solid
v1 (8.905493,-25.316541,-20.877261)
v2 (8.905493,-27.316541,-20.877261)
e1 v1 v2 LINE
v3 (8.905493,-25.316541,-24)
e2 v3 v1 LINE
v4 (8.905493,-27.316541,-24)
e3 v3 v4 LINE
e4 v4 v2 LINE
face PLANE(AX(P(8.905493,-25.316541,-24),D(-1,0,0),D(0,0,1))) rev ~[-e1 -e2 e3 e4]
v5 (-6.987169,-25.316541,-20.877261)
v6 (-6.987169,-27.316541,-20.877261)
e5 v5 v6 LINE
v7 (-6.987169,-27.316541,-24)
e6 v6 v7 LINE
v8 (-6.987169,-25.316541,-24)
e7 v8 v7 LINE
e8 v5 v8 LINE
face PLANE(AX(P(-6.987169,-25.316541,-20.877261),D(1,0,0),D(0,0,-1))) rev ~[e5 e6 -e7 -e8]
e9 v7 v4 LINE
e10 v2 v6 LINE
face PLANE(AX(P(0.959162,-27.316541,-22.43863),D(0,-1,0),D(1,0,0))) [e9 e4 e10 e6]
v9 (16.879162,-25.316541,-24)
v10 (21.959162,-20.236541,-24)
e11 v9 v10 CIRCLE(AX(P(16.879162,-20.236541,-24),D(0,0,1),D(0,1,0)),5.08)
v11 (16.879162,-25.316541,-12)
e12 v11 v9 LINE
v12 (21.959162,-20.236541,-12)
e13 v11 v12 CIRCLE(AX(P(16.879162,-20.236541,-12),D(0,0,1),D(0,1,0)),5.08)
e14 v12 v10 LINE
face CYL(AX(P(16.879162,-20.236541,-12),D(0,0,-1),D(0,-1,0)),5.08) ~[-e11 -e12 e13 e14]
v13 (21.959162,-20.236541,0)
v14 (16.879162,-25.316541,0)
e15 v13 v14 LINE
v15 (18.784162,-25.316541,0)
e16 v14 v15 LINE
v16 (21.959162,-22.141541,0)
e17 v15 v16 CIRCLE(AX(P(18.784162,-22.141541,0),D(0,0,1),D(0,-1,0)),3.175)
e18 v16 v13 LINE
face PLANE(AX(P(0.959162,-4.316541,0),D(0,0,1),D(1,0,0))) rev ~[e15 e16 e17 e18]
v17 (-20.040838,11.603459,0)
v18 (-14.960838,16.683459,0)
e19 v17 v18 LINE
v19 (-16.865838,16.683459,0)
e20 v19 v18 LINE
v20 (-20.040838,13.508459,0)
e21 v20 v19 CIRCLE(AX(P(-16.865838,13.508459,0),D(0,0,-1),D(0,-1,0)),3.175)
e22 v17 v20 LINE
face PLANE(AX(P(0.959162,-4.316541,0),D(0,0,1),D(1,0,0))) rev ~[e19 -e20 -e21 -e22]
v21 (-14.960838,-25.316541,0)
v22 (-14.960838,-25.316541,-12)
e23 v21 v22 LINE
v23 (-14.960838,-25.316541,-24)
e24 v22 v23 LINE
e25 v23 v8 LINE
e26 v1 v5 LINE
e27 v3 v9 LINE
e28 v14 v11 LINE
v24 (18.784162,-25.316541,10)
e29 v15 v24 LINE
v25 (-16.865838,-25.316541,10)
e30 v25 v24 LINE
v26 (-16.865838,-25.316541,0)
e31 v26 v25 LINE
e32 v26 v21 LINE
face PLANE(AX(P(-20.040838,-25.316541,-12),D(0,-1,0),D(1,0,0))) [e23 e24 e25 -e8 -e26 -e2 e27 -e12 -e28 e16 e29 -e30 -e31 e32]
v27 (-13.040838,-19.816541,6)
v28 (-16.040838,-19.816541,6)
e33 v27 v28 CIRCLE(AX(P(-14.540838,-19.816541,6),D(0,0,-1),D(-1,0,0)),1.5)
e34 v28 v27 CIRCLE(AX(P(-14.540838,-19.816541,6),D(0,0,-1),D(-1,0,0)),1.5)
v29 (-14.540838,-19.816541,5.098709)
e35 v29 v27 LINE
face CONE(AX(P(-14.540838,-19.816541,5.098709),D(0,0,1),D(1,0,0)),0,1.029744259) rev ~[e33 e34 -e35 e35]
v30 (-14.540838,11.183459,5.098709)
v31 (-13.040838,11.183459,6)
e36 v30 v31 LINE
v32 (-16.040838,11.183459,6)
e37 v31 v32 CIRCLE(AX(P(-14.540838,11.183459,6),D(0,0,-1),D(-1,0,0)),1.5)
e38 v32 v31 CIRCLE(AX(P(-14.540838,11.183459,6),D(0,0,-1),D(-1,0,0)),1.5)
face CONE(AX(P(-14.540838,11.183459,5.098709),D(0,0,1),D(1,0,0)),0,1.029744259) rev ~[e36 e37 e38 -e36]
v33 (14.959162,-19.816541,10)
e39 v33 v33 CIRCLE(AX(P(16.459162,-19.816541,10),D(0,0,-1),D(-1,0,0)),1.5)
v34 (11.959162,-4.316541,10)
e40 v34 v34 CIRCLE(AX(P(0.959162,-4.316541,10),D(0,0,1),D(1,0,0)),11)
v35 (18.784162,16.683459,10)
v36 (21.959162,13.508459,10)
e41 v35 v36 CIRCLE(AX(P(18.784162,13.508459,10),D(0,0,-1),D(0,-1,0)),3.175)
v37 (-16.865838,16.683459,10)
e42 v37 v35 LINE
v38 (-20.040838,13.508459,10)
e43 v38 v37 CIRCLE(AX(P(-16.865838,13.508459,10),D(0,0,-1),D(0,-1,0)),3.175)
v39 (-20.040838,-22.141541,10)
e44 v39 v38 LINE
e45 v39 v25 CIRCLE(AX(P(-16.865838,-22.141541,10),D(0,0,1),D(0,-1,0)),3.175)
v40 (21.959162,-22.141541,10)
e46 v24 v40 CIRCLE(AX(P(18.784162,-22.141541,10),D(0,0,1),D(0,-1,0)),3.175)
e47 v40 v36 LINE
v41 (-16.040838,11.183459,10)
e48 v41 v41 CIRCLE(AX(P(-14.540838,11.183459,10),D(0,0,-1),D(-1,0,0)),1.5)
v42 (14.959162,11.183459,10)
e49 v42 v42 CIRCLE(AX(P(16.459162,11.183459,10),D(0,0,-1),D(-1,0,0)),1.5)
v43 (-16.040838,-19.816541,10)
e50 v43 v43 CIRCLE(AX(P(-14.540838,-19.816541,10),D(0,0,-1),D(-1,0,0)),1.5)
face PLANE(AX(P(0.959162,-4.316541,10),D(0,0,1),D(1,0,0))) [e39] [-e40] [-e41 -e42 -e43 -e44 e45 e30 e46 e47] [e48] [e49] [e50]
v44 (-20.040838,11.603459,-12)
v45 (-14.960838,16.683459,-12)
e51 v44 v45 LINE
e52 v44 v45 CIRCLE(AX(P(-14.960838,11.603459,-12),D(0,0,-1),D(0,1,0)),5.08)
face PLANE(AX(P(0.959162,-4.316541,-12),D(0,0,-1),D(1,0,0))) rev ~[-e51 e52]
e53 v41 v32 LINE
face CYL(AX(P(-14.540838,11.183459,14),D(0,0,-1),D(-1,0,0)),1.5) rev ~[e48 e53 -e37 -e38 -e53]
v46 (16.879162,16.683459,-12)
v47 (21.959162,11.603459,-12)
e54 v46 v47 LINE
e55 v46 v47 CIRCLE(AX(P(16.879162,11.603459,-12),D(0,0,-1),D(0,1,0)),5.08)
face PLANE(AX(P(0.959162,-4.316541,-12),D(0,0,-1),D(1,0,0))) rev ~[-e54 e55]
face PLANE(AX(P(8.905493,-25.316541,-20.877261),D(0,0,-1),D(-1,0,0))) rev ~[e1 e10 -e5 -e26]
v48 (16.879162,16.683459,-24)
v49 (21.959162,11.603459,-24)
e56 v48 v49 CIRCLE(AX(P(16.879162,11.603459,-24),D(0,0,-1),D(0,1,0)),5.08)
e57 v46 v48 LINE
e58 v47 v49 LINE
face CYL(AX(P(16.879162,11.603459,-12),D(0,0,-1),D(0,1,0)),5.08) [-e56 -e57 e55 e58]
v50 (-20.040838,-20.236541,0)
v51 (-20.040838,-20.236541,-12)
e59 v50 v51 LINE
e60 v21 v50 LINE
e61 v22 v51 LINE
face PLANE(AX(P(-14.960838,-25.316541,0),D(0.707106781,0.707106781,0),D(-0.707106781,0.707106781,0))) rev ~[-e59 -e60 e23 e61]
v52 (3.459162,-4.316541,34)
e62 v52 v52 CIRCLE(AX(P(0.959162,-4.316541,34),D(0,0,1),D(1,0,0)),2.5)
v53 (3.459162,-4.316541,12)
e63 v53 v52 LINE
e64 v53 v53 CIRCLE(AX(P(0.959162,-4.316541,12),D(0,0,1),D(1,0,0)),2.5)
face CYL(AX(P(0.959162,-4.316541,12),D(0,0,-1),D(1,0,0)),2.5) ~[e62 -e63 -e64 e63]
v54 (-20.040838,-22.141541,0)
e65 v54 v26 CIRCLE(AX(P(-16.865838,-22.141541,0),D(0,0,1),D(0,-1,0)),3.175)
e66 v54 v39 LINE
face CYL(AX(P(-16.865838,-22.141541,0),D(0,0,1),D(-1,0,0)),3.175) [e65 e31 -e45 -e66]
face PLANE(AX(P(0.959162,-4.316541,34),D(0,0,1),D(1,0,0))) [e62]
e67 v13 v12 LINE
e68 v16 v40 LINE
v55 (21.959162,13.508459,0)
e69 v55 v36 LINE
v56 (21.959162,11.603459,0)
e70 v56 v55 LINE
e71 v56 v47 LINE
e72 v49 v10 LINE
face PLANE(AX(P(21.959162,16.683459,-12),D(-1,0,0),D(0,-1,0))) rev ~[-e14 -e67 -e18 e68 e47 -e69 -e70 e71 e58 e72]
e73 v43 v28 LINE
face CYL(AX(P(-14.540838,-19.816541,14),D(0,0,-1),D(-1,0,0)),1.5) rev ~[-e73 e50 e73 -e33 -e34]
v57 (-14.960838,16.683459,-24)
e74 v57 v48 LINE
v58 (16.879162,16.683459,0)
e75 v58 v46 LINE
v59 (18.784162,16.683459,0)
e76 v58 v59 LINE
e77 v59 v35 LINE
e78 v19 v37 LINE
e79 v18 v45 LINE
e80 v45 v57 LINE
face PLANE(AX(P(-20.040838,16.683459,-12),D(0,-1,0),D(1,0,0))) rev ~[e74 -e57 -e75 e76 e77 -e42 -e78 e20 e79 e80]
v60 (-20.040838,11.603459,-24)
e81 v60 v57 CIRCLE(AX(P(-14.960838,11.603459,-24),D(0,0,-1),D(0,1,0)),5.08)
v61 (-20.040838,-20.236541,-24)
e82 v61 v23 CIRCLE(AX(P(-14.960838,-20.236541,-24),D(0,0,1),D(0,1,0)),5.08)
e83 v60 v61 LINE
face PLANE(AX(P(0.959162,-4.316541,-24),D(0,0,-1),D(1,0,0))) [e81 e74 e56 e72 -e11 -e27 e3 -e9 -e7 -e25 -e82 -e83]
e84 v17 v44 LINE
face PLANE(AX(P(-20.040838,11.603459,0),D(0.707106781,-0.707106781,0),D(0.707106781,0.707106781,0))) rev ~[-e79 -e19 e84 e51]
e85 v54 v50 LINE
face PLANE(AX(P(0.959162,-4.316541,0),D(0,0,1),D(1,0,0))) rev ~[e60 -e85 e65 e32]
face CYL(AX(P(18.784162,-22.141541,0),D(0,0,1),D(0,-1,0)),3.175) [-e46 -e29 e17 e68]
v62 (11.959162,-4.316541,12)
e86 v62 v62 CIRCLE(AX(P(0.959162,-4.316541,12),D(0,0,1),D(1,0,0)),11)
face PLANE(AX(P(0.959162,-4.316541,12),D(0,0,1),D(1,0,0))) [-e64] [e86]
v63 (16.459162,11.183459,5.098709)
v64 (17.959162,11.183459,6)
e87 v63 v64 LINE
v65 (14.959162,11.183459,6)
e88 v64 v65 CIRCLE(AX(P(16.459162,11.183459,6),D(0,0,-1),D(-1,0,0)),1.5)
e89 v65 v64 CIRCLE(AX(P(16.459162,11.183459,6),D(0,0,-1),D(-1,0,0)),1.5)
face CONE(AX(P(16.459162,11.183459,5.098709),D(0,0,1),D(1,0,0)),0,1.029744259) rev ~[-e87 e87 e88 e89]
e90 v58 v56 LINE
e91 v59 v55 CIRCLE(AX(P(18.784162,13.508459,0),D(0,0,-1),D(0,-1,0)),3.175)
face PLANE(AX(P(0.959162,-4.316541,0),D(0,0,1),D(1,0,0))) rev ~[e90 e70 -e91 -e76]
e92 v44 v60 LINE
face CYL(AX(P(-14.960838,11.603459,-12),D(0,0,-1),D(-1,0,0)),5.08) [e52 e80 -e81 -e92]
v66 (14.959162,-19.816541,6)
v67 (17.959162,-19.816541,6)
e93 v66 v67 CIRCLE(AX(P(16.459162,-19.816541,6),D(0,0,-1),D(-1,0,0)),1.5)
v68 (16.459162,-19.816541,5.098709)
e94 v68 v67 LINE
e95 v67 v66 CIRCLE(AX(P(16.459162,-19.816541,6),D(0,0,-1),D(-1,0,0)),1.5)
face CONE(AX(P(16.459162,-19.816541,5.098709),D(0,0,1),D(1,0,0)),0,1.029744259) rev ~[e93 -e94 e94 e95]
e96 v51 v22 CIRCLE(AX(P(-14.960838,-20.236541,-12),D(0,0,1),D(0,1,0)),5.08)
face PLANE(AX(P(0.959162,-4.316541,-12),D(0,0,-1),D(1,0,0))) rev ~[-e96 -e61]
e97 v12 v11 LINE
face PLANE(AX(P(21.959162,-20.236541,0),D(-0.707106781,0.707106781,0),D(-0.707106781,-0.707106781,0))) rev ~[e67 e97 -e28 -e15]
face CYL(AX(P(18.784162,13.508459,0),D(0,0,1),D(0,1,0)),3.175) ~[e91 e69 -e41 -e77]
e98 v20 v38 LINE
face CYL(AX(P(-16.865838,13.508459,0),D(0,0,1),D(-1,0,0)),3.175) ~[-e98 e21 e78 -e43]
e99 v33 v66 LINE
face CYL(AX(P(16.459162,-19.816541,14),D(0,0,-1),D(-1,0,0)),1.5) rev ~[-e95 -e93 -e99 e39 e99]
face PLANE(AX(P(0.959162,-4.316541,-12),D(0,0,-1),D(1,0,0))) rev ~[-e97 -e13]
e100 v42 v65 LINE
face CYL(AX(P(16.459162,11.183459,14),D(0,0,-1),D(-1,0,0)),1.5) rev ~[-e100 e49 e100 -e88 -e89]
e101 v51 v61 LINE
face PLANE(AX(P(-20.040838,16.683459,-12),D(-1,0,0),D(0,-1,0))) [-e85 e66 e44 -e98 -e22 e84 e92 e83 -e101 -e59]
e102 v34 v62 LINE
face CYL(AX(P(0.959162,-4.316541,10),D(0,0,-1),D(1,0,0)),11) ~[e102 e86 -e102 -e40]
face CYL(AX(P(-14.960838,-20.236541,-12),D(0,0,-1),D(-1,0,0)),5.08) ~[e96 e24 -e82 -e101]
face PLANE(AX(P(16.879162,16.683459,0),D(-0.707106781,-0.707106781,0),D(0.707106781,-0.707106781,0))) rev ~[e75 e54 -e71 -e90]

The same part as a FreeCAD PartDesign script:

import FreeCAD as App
import Part
import Sketcher

V = App.Vector
Q = App.Units.Quantity


def edges_at(feature, points):
    """Names of the edges that pass closest to the given points."""
    edges = feature.Shape.Edges
    near = lambda p: min(range(len(edges)), key=lambda i: edges[i].distToShape(Part.Vertex(*p))[0])
    return sorted({f"Edge{near(p) + 1}" for p in points})


def add_polygon(sketch, points):
    """Adds a closed chain of lines whose ends are joined by coincident constraints."""
    first, n = sketch.GeometryCount, len(points)
    for a, b in zip(points, points[1:] + points[:1]):
        sketch.addGeometry(Part.LineSegment(App.Vector(*a, 0), App.Vector(*b, 0)), False)
    for i in range(n):
        sketch.addConstraint(Sketcher.Constraint("Coincident", first + i, 2, first + (i + 1) % n, 1))

doc = App.newDocument("Part")
body = doc.addObject("PartDesign::Body", "Body")

sketch1 = doc.addObject("Sketcher::SketchObject", "Sketch")
body.addObject(sketch1)
sketch1.AttachmentSupport = (doc.XY_Plane, [""])
sketch1.MapMode = "FlatFace"
add_polygon(sketch1, [(-20.040838, 16.683459), (-20.040838, -25.316541), (21.959162, -25.316541), (21.959162, 16.683459)])
sketch1.addConstraint(Sketcher.Constraint("Vertical", 0))
sketch1.addConstraint(Sketcher.Constraint("Horizontal", 1))
sketch1.addConstraint(Sketcher.Constraint("Vertical", 2))
sketch1.addConstraint(Sketcher.Constraint("Horizontal", 3))
sketch1.addConstraint(Sketcher.Constraint("Equal", 3, 0))
sketch1.addConstraint(Sketcher.Constraint("DistanceX", 1, 1, 1, 2, Q("42 mm")))
sketch1.addConstraint(Sketcher.Constraint("DistanceX", 0, 2, -1, 1, Q("20.040838 mm")))
sketch1.addConstraint(Sketcher.Constraint("DistanceY", 0, 2, -1, 1, Q("25.316541 mm")))
pad1 = doc.addObject("PartDesign::Pad", "Pad")
body.addObject(pad1)
pad1.Profile = sketch1
pad1.Length = 10

sketch2 = doc.addObject("Sketcher::SketchObject", "Sketch001")
body.addObject(sketch2)
sketch2.AttachmentSupport = (doc.XY_Plane, [""])
sketch2.MapMode = "FlatFace"
sketch2.AttachmentOffset = App.Placement(V(0, 0, 10), App.Rotation())
sketch2.addGeometry(Part.Circle(V(0.959162, -4.316541, 0), V(0, 0, 1), 11), False)
sketch2.addConstraint(Sketcher.Constraint("Diameter", 0, Q("22 mm")))
sketch2.addConstraint(Sketcher.Constraint("DistanceX", -1, 1, 0, 3, Q("0.959162 mm")))
sketch2.addConstraint(Sketcher.Constraint("DistanceY", 0, 3, -1, 1, Q("4.316541 mm")))
pad2 = doc.addObject("PartDesign::Pad", "Pad001")
body.addObject(pad2)
pad2.Profile = sketch2
pad2.Length = 2
doc.recompute()

fillet = doc.addObject("PartDesign::Fillet", "Fillet")
body.addObject(fillet)
fillet.Base = (pad2, edges_at(pad2, [
    (21.959, -25.317, 5),
    (21.959, 16.683, 5),
    (-20.041, 16.683, 5),
    (-20.041, -25.317, 5),
]))
fillet.Radius = 3.175

sketch3 = doc.addObject("Sketcher::SketchObject", "Sketch002")
body.addObject(sketch3)
sketch3.AttachmentSupport = (doc.XY_Plane, [""])
sketch3.MapMode = "FlatFace"
add_polygon(sketch3, [(-20.040838, -20.236541), (-20.040838, 11.603459), (-14.960838, 16.683459), (16.879162, 16.683459), (21.959162, 11.603459), (21.959162, -20.236541), (16.879162, -25.316541), (-14.960838, -25.316541)])
sketch3.addConstraint(Sketcher.Constraint("Vertical", 0))
sketch3.addConstraint(Sketcher.Constraint("Horizontal", 2))
sketch3.addConstraint(Sketcher.Constraint("Vertical", 4))
sketch3.addConstraint(Sketcher.Constraint("Horizontal", 6))
sketch3.addConstraint(Sketcher.Constraint("Perpendicular", 1, 3))
sketch3.addConstraint(Sketcher.Constraint("Perpendicular", 3, 5))
sketch3.addConstraint(Sketcher.Constraint("Perpendicular", 5, 7))
sketch3.addConstraint(Sketcher.Constraint("Horizontal", 0, 2, 3, 2))
sketch3.addConstraint(Sketcher.Constraint("Horizontal", 4, 2, 7, 2))
sketch3.addConstraint(Sketcher.Constraint("Vertical", 2, 2, 5, 2))
sketch3.addConstraint(Sketcher.Constraint("Vertical", 1, 2, 6, 2))
sketch3.addConstraint(Sketcher.Constraint("Equal", 6, 0))
sketch3.addConstraint(Sketcher.Constraint("DistanceX", 0, 2, 3, 2, Q("42 mm")))
sketch3.addConstraint(Sketcher.Constraint("DistanceX", 2, 1, 2, 2, Q("31.84 mm")))
sketch3.addConstraint(Sketcher.Constraint("DistanceX", 0, 2, -1, 1, Q("20.040838 mm")))
sketch3.addConstraint(Sketcher.Constraint("DistanceY", -1, 1, 0, 2, Q("11.603459 mm")))
pad3 = doc.addObject("PartDesign::Pad", "Pad002")
body.addObject(pad3)
pad3.Profile = sketch3
pad3.Length = 12
pad3.Reversed = True

sketch4 = doc.addObject("Sketcher::SketchObject", "Sketch003")
body.addObject(sketch4)
sketch4.AttachmentSupport = (doc.XY_Plane, [""])
sketch4.MapMode = "FlatFace"
sketch4.AttachmentOffset = App.Placement(V(0, 0, -12), App.Rotation())
add_polygon(sketch4, [(-20.040838, -25.316541), (-20.040838, 16.683459), (21.959162, 16.683459), (21.959162, -25.316541)])
sketch4.addConstraint(Sketcher.Constraint("Vertical", 0))
sketch4.addConstraint(Sketcher.Constraint("Horizontal", 1))
sketch4.addConstraint(Sketcher.Constraint("Vertical", 2))
sketch4.addConstraint(Sketcher.Constraint("Horizontal", 3))
sketch4.addConstraint(Sketcher.Constraint("Equal", 3, 0))
sketch4.addConstraint(Sketcher.Constraint("DistanceX", 1, 1, 1, 2, Q("42 mm")))
sketch4.addConstraint(Sketcher.Constraint("DistanceX", 0, 2, -1, 1, Q("20.040838 mm")))
sketch4.addConstraint(Sketcher.Constraint("DistanceY", -1, 1, 0, 2, Q("16.683459 mm")))
pad4 = doc.addObject("PartDesign::Pad", "Pad003")
body.addObject(pad4)
pad4.Profile = sketch4
pad4.Length = 12
pad4.Reversed = True
doc.recompute()

fillet2 = doc.addObject("PartDesign::Fillet", "Fillet001")
body.addObject(fillet2)
fillet2.Base = (pad4, edges_at(pad4, [
    (21.959, 16.683, -18),
    (21.959, -25.317, -18),
    (-20.041, 16.683, -18),
    (-20.041, -25.317, -18),
]))
fillet2.Radius = 5.08

sketch5 = doc.addObject("Sketcher::SketchObject", "Sketch004")
body.addObject(sketch5)
sketch5.AttachmentSupport = (doc.XY_Plane, [""])
sketch5.MapMode = "FlatFace"
sketch5.AttachmentOffset = App.Placement(V(0, 0, 10), App.Rotation())
sketch5.addGeometry(Part.Circle(V(-14.540838, 11.183459, 0), V(0, 0, 1), 1.5), False)
sketch5.addGeometry(Part.Circle(V(-14.540838, -19.816541, 0), V(0, 0, 1), 1.5), False)
sketch5.addGeometry(Part.Circle(V(16.459162, -19.816541, 0), V(0, 0, 1), 1.5), False)
sketch5.addGeometry(Part.Circle(V(16.459162, 11.183459, 0), V(0, 0, 1), 1.5), False)
sketch5.addConstraint(Sketcher.Constraint("Equal", 0, 1))
sketch5.addConstraint(Sketcher.Constraint("Equal", 1, 2))
sketch5.addConstraint(Sketcher.Constraint("Equal", 2, 3))
sketch5.addConstraint(Sketcher.Constraint("Horizontal", 1, 3, 2, 3))
sketch5.addConstraint(Sketcher.Constraint("Horizontal", 0, 3, 3, 3))
sketch5.addConstraint(Sketcher.Constraint("Vertical", 0, 3, 1, 3))
sketch5.addConstraint(Sketcher.Constraint("Vertical", 2, 3, 3, 3))
sketch5.addConstraint(Sketcher.Constraint("Diameter", 0, Q("3 mm")))
sketch5.addConstraint(Sketcher.Constraint("DistanceY", 1, 3, 0, 3, Q("31 mm")))
sketch5.addConstraint(Sketcher.Constraint("DistanceX", 1, 3, 2, 3, Q("31 mm")))
sketch5.addConstraint(Sketcher.Constraint("DistanceX", 0, 3, -1, 1, Q("14.540838 mm")))
sketch5.addConstraint(Sketcher.Constraint("DistanceY", -1, 1, 0, 3, Q("11.183459 mm")))
doc.recompute()
hole = doc.addObject("PartDesign::Hole", "Hole")
body.addObject(hole)
hole.Profile = sketch5
hole.ThreadType = "None"
hole.Diameter = 3
hole.DepthType = "Dimension"
hole.Depth = 4
hole.DrillPoint = "Angled"
hole.DrillPointAngle = 118

sketch6 = doc.addObject("Sketcher::SketchObject", "Sketch005")
body.addObject(sketch6)
sketch6.AttachmentSupport = (doc.XY_Plane, [""])
sketch6.MapMode = "FlatFace"
sketch6.AttachmentOffset = App.Placement(V(0, 0, 12), App.Rotation())
sketch6.addGeometry(Part.Circle(V(0.959162, -4.316541, 0), V(0, 0, 1), 2.5), False)
sketch6.addConstraint(Sketcher.Constraint("Diameter", 0, Q("5 mm")))
sketch6.addConstraint(Sketcher.Constraint("DistanceX", -1, 1, 0, 3, Q("0.959162 mm")))
sketch6.addConstraint(Sketcher.Constraint("DistanceY", 0, 3, -1, 1, Q("4.316541 mm")))
pad5 = doc.addObject("PartDesign::Pad", "Pad004")
body.addObject(pad5)
pad5.Profile = sketch6
pad5.Length = 22

sketch7 = doc.addObject("Sketcher::SketchObject", "Sketch006")
body.addObject(sketch7)
sketch7.AttachmentSupport = (doc.XZ_Plane, [""])
sketch7.MapMode = "FlatFace"
sketch7.AttachmentOffset = App.Placement(V(0, 0, 25.316541), App.Rotation())
add_polygon(sketch7, [(-6.987169, -24), (8.905493, -24), (8.905493, -20.877261), (-6.987169, -20.877261)])
sketch7.addConstraint(Sketcher.Constraint("Horizontal", 0))
sketch7.addConstraint(Sketcher.Constraint("Vertical", 1))
sketch7.addConstraint(Sketcher.Constraint("Horizontal", 2))
sketch7.addConstraint(Sketcher.Constraint("Vertical", 3))
sketch7.addConstraint(Sketcher.Constraint("DistanceY", 0, 2, -1, 1, Q("24 mm")))
sketch7.addConstraint(Sketcher.Constraint("DistanceY", 1, 1, 1, 2, Q("3.122739 mm")))
sketch7.addConstraint(Sketcher.Constraint("DistanceX", 0, 1, 0, 2, Q("15.892662 mm")))
sketch7.addConstraint(Sketcher.Constraint("DistanceX", 2, 2, -1, 1, Q("6.987169 mm")))
pad6 = doc.addObject("PartDesign::Pad", "Pad005")
body.addObject(pad6)
pad6.Profile = sketch7
pad6.Length = 2

doc.recompute()
